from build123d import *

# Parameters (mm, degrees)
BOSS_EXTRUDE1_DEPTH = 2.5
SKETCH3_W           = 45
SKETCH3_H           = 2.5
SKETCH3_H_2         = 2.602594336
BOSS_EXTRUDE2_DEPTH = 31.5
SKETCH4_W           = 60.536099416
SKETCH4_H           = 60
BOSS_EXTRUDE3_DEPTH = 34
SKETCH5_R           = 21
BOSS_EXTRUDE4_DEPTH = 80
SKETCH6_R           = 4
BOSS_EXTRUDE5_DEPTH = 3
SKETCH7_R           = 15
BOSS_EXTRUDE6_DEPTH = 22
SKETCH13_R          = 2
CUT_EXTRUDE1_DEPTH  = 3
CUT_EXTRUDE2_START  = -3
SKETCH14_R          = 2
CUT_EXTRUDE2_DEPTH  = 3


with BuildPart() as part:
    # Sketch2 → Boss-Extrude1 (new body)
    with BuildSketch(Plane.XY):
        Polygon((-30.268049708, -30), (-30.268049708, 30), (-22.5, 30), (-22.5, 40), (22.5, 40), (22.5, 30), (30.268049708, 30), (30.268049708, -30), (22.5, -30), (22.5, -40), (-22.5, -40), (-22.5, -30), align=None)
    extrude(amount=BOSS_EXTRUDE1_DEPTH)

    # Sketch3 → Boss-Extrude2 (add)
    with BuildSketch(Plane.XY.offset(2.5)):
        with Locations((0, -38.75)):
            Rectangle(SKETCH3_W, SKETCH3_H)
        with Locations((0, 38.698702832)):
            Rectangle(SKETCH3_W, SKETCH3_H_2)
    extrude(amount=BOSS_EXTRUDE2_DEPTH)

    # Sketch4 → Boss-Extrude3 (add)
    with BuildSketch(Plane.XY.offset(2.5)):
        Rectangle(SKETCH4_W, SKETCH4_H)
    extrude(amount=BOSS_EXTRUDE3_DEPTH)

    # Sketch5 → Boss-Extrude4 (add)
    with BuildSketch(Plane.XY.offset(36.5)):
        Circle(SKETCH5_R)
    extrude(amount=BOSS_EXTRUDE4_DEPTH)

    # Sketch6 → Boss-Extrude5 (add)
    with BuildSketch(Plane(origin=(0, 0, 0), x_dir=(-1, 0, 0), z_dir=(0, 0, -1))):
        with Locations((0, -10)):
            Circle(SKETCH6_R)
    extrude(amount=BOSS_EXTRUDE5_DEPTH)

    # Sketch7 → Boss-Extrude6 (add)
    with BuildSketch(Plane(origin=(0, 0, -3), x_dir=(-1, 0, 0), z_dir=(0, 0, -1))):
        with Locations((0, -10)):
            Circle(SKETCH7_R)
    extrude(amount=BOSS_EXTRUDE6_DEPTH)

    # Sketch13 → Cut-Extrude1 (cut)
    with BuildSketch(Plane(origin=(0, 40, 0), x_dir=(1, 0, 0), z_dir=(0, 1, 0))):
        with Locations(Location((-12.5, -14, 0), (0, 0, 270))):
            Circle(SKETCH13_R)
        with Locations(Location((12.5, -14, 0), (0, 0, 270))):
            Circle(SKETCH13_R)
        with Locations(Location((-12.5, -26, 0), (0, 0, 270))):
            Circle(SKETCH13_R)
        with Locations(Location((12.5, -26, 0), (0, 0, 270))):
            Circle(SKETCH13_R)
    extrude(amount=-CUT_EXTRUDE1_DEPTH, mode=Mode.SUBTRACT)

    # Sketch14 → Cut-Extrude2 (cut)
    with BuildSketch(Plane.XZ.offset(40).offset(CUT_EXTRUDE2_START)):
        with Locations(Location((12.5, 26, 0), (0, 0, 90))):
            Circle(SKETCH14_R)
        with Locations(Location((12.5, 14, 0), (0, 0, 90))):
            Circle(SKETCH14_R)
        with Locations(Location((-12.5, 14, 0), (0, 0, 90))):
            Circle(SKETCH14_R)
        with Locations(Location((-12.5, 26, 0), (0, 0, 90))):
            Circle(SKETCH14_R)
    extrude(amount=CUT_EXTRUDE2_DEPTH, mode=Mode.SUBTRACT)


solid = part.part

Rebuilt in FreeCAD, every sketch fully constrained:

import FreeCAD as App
import Part
import Sketcher
from FreeCAD import Vector


def add_polygon(sketch, points):
    """Adds a closed chain of lines whose ends are joined by coincident constraints."""
    first, n = sketch.GeometryCount, len(points)
    for a, b in zip(points, points[1:] + points[:1]):
        sketch.addGeometry(Part.LineSegment(App.Vector(*a, 0), App.Vector(*b, 0)), False)
    for i in range(n):
        sketch.addConstraint(Sketcher.Constraint("Coincident", first + i, 2, first + (i + 1) % n, 1))

doc = App.newDocument("Part")
params = doc.addObject("Spreadsheet::Sheet", "Params")
for row, (alias, value) in enumerate([
    ("sketch1_width", "45 mm"),
    ("sketch1_height", "60 mm"),
    ("sketch1_height2", "10 mm"),
    ("pad1_length", "2.5 mm"),
    ("sketch2_width", "45 mm"),
    ("sketch2_height", "2.5 mm"),
    ("pad2_length", "31.5 mm"),
    ("sketch3_height", "60 mm"),
    ("pad3_length", "34 mm"),
    ("sketch4_diameter", "42 mm"),
    ("pad4_length", "80 mm"),
    ("sketch5_diameter", "8 mm"),
    ("pad5_length", "3 mm"),
    ("sketch6_diameter", "30 mm"),
    ("pad6_length", "22 mm"),
    ("sketch7_diameter", "4 mm"),
    ("pocket1_length", "3 mm"),
    ("sketch8_diameter", "4 mm"),
    ("pocket2_length", "3 mm"),
], start=1):
    params.set(f"A{row}", alias)
    params.set(f"B{row}", "=" + value)
    params.setAlias(f"B{row}", alias)

body = doc.addObject("PartDesign::Body", "Body")

# Sketch on XY plane
sketch1 = body.newObject("Sketcher::SketchObject", "Sketch")
sketch1.AttachmentSupport = (doc.getObject("XY_Plane"), [""])
sketch1.MapMode = "FlatFace"
add_polygon(sketch1, [(-30, 30), (-30, -30), (-22, -30), (-22, -40), (22, -40), (22, -30), (30, -30), (30, 30), (22, 30), (22, 40), (-22, 40), (-22, 30)])  # lines 0-11
sketch1.addConstraint([
    Sketcher.Constraint("Vertical", 0),
    Sketcher.Constraint("Horizontal", 1),
    Sketcher.Constraint("Vertical", 2),
    Sketcher.Constraint("Horizontal", 3),
    Sketcher.Constraint("Vertical", 4),
    Sketcher.Constraint("Horizontal", 5),
    Sketcher.Constraint("Vertical", 6),
    Sketcher.Constraint("Horizontal", 7),
    Sketcher.Constraint("Vertical", 8),
    Sketcher.Constraint("Horizontal", 9),
    Sketcher.Constraint("Vertical", 10),
    Sketcher.Constraint("Horizontal", 11),
    Sketcher.Constraint("Symmetric", 0, 2, 6, 2, -1, 1),
    Sketcher.Constraint("Symmetric", 2, 2, 8, 2, -1, 1),
    Sketcher.Constraint("Symmetric", 4, 2, 10, 2, -1, 1),
    Sketcher.Constraint("Symmetric", 1, 2, 4, 2, -2),
    Sketcher.Constraint("DistanceX", 3, 1, 3, 2, 45.0),
    Sketcher.Constraint("DistanceY", 0, 2, 0, 1, 60.0),
    Sketcher.Constraint("DistanceY", 2, 2, 2, 1, 10.0),
    Sketcher.Constraint("DistanceX", 1, 1, 1, 2, 7.76805),
])
sketch1.setExpression("Constraints[28]", "Params.sketch1_width")
sketch1.setExpression("Constraints[29]", "Params.sketch1_height")
sketch1.setExpression("Constraints[30]", "Params.sketch1_height2")
pad1 = body.newObject("PartDesign::Pad", "Pad")
pad1.Profile = sketch1
pad1.setExpression("Length", "Params.pad1_length")

# Sketch on XY plane
sketch2 = body.newObject("Sketcher::SketchObject", "Sketch001")
sketch2.AttachmentSupport = (doc.getObject("XY_Plane"), [""])
sketch2.MapMode = "FlatFace"
sketch2.AttachmentOffset = App.Placement(Vector(0, 0, 2.5), App.Rotation())
add_polygon(sketch2, [(-22.5, -37.5), (-22.5, -40), (22.5, -40), (22.5, -37.5)])  # lines 0-3
add_polygon(sketch2, [(-22.5, 40), (-22.5, 37.4), (22.5, 37.4), (22.5, 40)])  # lines 4-7
sketch2.addConstraint([
    Sketcher.Constraint("Vertical", 0),
    Sketcher.Constraint("Horizontal", 1),
    Sketcher.Constraint("Vertical", 2),
    Sketcher.Constraint("Horizontal", 3),
    Sketcher.Constraint("Vertical", 4),
    Sketcher.Constraint("Horizontal", 5),
    Sketcher.Constraint("Vertical", 6),
    Sketcher.Constraint("Horizontal", 7),
    Sketcher.Constraint("Symmetric", 0, 2, 6, 2, -1, 1),
    Sketcher.Constraint("Vertical", 3, 2, 4, 2),
    Sketcher.Constraint("Vertical", 2, 2, 5, 2),
    Sketcher.Constraint("DistanceX", 1, 1, 1, 2, 45.0),
    Sketcher.Constraint("DistanceY", 0, 2, 0, 1, 2.5),
    Sketcher.Constraint("DistanceY", 0, 2, -1, 1, 40.0),
    Sketcher.Constraint("DistanceY", 4, 2, 4, 1, 2.602594),
])
sketch2.setExpression("Constraints[19]", "Params.sketch2_width")
sketch2.setExpression("Constraints[20]", "Params.sketch2_height")
pad2 = body.newObject("PartDesign::Pad", "Pad001")
pad2.Profile = sketch2
pad2.setExpression("Length", "Params.pad2_length")

# Sketch on XY plane
sketch3 = body.newObject("Sketcher::SketchObject", "Sketch002")
sketch3.AttachmentSupport = (doc.getObject("XY_Plane"), [""])
sketch3.MapMode = "FlatFace"
sketch3.AttachmentOffset = App.Placement(Vector(0, 0, 2.5), App.Rotation())
add_polygon(sketch3, [(-30, 30), (-30, -30), (30, -30), (30, 30)])  # lines 0-3
sketch3.addConstraint([
    Sketcher.Constraint("Vertical", 0),
    Sketcher.Constraint("Horizontal", 1),
    Sketcher.Constraint("Vertical", 2),
    Sketcher.Constraint("Horizontal", 3),
    Sketcher.Constraint("Symmetric", 0, 2, 2, 2, -1, 1),
    Sketcher.Constraint("DistanceY", 0, 2, 0, 1, 60.0),
    Sketcher.Constraint("DistanceX", 1, 1, 1, 2, 60.536099),
])
sketch3.setExpression("Constraints[9]", "Params.sketch3_height")
pad3 = body.newObject("PartDesign::Pad", "Pad002")
pad3.Profile = sketch3
pad3.setExpression("Length", "Params.pad3_length")

# Sketch on XY plane
sketch4 = body.newObject("Sketcher::SketchObject", "Sketch003")
sketch4.AttachmentSupport = (doc.getObject("XY_Plane"), [""])
sketch4.MapMode = "FlatFace"
sketch4.AttachmentOffset = App.Placement(Vector(0, 0, 36.5), App.Rotation())
sketch4.addGeometry(Part.Circle(Vector(0, 0, 0), Vector(0, 0, 1), 21), False)
sketch4.addConstraint([
    Sketcher.Constraint("Coincident", 0, 3, -1, 1),
    Sketcher.Constraint("Diameter", 0, 42.0),
])
sketch4.setExpression("Constraints[1]", "Params.sketch4_diameter")
pad4 = body.newObject("PartDesign::Pad", "Pad003")
pad4.Profile = sketch4
pad4.setExpression("Length", "Params.pad4_length")

# Sketch on XY plane
sketch5 = body.newObject("Sketcher::SketchObject", "Sketch004")
sketch5.AttachmentSupport = (doc.getObject("XY_Plane"), [""])
sketch5.MapMode = "FlatFace"
sketch5.addGeometry(Part.Circle(Vector(0, -10, 0), Vector(0, 0, 1), 4), False)
sketch5.addConstraint([
    Sketcher.Constraint("PointOnObject", 0, 3, -2),
    Sketcher.Constraint("Diameter", 0, 8.0),
    Sketcher.Constraint("DistanceY", 0, 3, -1, 1, 10.0),
])
sketch5.setExpression("Constraints[1]", "Params.sketch5_diameter")
pad5 = body.newObject("PartDesign::Pad", "Pad004")
pad5.Profile = sketch5
pad5.setExpression("Length", "Params.pad5_length")
pad5.Reversed = True

# Sketch on XY plane
sketch6 = body.newObject("Sketcher::SketchObject", "Sketch005")
sketch6.AttachmentSupport = (doc.getObject("XY_Plane"), [""])
sketch6.MapMode = "FlatFace"
sketch6.AttachmentOffset = App.Placement(Vector(0, 0, -3), App.Rotation())
sketch6.addGeometry(Part.Circle(Vector(0, -10, 0), Vector(0, 0, 1), 15), False)
sketch6.addConstraint([
    Sketcher.Constraint("PointOnObject", 0, 3, -2),
    Sketcher.Constraint("Diameter", 0, 30.0),
    Sketcher.Constraint("DistanceY", 0, 3, -1, 1, 10.0),
])
sketch6.setExpression("Constraints[1]", "Params.sketch6_diameter")
pad6 = body.newObject("PartDesign::Pad", "Pad005")
pad6.Profile = sketch6
pad6.setExpression("Length", "Params.pad6_length")
pad6.Reversed = True

# Sketch on XZ plane
sketch7 = body.newObject("Sketcher::SketchObject", "Sketch006")
sketch7.AttachmentSupport = (doc.getObject("XZ_Plane"), [""])
sketch7.MapMode = "FlatFace"
sketch7.AttachmentOffset = App.Placement(Vector(0, 0, -40), App.Rotation())
sketch7.addGeometry([
    Part.Circle(Vector(-12.5, 14, 0), Vector(0, 0, 1), 2),
    Part.Circle(Vector(12.5, 14, 0), Vector(0, 0, 1), 2),
    Part.Circle(Vector(-12.5, 26, 0), Vector(0, 0, 1), 2),
    Part.Circle(Vector(12.5, 26, 0), Vector(0, 0, 1), 2),
], False)
sketch7.addConstraint([
    Sketcher.Constraint("Equal", 0, 1),
    Sketcher.Constraint("Equal", 1, 2),
    Sketcher.Constraint("Equal", 2, 3),
    Sketcher.Constraint("Symmetric", 0, 3, 1, 3, -2),
    Sketcher.Constraint("Symmetric", 2, 3, 3, 3, -2),
    Sketcher.Constraint("Vertical", 0, 3, 2, 3),
    Sketcher.Constraint("Diameter", 0, 4.0),
    Sketcher.Constraint("DistanceY", -1, 1, 0, 3, 14.0),
    Sketcher.Constraint("DistanceY", -1, 1, 2, 3, 26.0),
    Sketcher.Constraint("DistanceX", 0, 3, 1, 3, 25.0),
])
sketch7.setExpression("Constraints[6]", "Params.sketch7_diameter")
pocket1 = body.newObject("PartDesign::Pocket", "Pocket")
pocket1.Profile = sketch7
pocket1.setExpression("Length", "Params.pocket1_length")
pocket1.Reversed = True

# Sketch on XZ plane
sketch8 = body.newObject("Sketcher::SketchObject", "Sketch007")
sketch8.AttachmentSupport = (doc.getObject("XZ_Plane"), [""])
sketch8.MapMode = "FlatFace"
sketch8.AttachmentOffset = App.Placement(Vector(0, 0, 37), App.Rotation())
sketch8.addGeometry([
    Part.Circle(Vector(12.5, 26, 0), Vector(0, 0, 1), 2),
    Part.Circle(Vector(12.5, 14, 0), Vector(0, 0, 1), 2),
    Part.Circle(Vector(-12.5, 14, 0), Vector(0, 0, 1), 2),
    Part.Circle(Vector(-12.5, 26, 0), Vector(0, 0, 1), 2),
], False)
sketch8.addConstraint([
    Sketcher.Constraint("Equal", 0, 1),
    Sketcher.Constraint("Equal", 1, 2),
    Sketcher.Constraint("Equal", 2, 3),
    Sketcher.Constraint("Symmetric", 1, 3, 2, 3, -2),
    Sketcher.Constraint("Symmetric", 0, 3, 3, 3, -2),
    Sketcher.Constraint("Vertical", 0, 3, 1, 3),
    Sketcher.Constraint("Diameter", 0, 4.0),
    Sketcher.Constraint("DistanceY", -1, 1, 0, 3, 26.0),
    Sketcher.Constraint("DistanceY", -1, 1, 1, 3, 14.0),
    Sketcher.Constraint("DistanceX", 2, 3, 1, 3, 25.0),
])
sketch8.setExpression("Constraints[6]", "Params.sketch8_diameter")
pocket2 = body.newObject("PartDesign::Pocket", "Pocket001")
pocket2.Profile = sketch8
pocket2.setExpression("Length", "Params.pocket2_length")
pocket2.Reversed = True

doc.recompute()
